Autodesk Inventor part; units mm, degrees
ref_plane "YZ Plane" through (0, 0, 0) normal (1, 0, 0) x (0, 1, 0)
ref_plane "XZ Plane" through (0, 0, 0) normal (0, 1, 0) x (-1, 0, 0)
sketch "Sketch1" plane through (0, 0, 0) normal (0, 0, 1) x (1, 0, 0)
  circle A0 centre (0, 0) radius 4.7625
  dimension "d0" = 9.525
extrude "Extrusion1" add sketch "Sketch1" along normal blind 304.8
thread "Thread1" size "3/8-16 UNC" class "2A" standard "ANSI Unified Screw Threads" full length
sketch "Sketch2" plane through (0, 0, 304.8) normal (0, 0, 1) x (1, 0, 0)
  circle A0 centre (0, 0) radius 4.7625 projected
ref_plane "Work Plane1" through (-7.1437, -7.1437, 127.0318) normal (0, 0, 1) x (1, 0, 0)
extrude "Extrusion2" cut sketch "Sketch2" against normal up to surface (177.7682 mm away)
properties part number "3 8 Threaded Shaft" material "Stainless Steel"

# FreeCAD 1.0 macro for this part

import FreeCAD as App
import Part
import Sketcher

V = App.Vector
Q = App.Units.Quantity

doc = App.newDocument("Part")
body = doc.addObject("PartDesign::Body", "Body")

# Sketch on XY plane
sketch1 = body.newObject("Sketcher::SketchObject", "Sketch")
sketch1.AttachmentSupport = (doc.getObject("XY_Plane"), [""])
sketch1.MapMode = "FlatFace"
sketch1.addGeometry(Part.Circle(V(0, 0, 0), V(0, 0, 1), 4.8), False)
sketch1.addConstraint([
    Sketcher.Constraint("Coincident", 0, 3, -1, 1),
    Sketcher.Constraint("Diameter", 0, Q("0.375 in")),
])
pad1 = body.newObject("PartDesign::Pad", "Pad")
pad1.Profile = sketch1
pad1.Length = Q("12 in")

# Sketch on XY plane
sketch2 = body.newObject("Sketcher::SketchObject", "Sketch001")
sketch2.AttachmentSupport = (doc.getObject("XY_Plane"), [""])
sketch2.MapMode = "FlatFace"
sketch2.AttachmentOffset = App.Placement(V(0, 0, 12 * 25.4), App.Rotation())
sketch2.addGeometry(Part.Circle(V(0, 0, 0), V(0, 0, 1), 4.8), False)
sketch2.addConstraint([
    Sketcher.Constraint("Coincident", 0, 3, -1, 1),
    Sketcher.Constraint("Diameter", 0, Q("0.375 in")),
])
pocket1 = body.newObject("PartDesign::Pocket", "Pocket")
pocket1.Profile = sketch2
pocket1.Length = 177.7682

doc.recompute()
